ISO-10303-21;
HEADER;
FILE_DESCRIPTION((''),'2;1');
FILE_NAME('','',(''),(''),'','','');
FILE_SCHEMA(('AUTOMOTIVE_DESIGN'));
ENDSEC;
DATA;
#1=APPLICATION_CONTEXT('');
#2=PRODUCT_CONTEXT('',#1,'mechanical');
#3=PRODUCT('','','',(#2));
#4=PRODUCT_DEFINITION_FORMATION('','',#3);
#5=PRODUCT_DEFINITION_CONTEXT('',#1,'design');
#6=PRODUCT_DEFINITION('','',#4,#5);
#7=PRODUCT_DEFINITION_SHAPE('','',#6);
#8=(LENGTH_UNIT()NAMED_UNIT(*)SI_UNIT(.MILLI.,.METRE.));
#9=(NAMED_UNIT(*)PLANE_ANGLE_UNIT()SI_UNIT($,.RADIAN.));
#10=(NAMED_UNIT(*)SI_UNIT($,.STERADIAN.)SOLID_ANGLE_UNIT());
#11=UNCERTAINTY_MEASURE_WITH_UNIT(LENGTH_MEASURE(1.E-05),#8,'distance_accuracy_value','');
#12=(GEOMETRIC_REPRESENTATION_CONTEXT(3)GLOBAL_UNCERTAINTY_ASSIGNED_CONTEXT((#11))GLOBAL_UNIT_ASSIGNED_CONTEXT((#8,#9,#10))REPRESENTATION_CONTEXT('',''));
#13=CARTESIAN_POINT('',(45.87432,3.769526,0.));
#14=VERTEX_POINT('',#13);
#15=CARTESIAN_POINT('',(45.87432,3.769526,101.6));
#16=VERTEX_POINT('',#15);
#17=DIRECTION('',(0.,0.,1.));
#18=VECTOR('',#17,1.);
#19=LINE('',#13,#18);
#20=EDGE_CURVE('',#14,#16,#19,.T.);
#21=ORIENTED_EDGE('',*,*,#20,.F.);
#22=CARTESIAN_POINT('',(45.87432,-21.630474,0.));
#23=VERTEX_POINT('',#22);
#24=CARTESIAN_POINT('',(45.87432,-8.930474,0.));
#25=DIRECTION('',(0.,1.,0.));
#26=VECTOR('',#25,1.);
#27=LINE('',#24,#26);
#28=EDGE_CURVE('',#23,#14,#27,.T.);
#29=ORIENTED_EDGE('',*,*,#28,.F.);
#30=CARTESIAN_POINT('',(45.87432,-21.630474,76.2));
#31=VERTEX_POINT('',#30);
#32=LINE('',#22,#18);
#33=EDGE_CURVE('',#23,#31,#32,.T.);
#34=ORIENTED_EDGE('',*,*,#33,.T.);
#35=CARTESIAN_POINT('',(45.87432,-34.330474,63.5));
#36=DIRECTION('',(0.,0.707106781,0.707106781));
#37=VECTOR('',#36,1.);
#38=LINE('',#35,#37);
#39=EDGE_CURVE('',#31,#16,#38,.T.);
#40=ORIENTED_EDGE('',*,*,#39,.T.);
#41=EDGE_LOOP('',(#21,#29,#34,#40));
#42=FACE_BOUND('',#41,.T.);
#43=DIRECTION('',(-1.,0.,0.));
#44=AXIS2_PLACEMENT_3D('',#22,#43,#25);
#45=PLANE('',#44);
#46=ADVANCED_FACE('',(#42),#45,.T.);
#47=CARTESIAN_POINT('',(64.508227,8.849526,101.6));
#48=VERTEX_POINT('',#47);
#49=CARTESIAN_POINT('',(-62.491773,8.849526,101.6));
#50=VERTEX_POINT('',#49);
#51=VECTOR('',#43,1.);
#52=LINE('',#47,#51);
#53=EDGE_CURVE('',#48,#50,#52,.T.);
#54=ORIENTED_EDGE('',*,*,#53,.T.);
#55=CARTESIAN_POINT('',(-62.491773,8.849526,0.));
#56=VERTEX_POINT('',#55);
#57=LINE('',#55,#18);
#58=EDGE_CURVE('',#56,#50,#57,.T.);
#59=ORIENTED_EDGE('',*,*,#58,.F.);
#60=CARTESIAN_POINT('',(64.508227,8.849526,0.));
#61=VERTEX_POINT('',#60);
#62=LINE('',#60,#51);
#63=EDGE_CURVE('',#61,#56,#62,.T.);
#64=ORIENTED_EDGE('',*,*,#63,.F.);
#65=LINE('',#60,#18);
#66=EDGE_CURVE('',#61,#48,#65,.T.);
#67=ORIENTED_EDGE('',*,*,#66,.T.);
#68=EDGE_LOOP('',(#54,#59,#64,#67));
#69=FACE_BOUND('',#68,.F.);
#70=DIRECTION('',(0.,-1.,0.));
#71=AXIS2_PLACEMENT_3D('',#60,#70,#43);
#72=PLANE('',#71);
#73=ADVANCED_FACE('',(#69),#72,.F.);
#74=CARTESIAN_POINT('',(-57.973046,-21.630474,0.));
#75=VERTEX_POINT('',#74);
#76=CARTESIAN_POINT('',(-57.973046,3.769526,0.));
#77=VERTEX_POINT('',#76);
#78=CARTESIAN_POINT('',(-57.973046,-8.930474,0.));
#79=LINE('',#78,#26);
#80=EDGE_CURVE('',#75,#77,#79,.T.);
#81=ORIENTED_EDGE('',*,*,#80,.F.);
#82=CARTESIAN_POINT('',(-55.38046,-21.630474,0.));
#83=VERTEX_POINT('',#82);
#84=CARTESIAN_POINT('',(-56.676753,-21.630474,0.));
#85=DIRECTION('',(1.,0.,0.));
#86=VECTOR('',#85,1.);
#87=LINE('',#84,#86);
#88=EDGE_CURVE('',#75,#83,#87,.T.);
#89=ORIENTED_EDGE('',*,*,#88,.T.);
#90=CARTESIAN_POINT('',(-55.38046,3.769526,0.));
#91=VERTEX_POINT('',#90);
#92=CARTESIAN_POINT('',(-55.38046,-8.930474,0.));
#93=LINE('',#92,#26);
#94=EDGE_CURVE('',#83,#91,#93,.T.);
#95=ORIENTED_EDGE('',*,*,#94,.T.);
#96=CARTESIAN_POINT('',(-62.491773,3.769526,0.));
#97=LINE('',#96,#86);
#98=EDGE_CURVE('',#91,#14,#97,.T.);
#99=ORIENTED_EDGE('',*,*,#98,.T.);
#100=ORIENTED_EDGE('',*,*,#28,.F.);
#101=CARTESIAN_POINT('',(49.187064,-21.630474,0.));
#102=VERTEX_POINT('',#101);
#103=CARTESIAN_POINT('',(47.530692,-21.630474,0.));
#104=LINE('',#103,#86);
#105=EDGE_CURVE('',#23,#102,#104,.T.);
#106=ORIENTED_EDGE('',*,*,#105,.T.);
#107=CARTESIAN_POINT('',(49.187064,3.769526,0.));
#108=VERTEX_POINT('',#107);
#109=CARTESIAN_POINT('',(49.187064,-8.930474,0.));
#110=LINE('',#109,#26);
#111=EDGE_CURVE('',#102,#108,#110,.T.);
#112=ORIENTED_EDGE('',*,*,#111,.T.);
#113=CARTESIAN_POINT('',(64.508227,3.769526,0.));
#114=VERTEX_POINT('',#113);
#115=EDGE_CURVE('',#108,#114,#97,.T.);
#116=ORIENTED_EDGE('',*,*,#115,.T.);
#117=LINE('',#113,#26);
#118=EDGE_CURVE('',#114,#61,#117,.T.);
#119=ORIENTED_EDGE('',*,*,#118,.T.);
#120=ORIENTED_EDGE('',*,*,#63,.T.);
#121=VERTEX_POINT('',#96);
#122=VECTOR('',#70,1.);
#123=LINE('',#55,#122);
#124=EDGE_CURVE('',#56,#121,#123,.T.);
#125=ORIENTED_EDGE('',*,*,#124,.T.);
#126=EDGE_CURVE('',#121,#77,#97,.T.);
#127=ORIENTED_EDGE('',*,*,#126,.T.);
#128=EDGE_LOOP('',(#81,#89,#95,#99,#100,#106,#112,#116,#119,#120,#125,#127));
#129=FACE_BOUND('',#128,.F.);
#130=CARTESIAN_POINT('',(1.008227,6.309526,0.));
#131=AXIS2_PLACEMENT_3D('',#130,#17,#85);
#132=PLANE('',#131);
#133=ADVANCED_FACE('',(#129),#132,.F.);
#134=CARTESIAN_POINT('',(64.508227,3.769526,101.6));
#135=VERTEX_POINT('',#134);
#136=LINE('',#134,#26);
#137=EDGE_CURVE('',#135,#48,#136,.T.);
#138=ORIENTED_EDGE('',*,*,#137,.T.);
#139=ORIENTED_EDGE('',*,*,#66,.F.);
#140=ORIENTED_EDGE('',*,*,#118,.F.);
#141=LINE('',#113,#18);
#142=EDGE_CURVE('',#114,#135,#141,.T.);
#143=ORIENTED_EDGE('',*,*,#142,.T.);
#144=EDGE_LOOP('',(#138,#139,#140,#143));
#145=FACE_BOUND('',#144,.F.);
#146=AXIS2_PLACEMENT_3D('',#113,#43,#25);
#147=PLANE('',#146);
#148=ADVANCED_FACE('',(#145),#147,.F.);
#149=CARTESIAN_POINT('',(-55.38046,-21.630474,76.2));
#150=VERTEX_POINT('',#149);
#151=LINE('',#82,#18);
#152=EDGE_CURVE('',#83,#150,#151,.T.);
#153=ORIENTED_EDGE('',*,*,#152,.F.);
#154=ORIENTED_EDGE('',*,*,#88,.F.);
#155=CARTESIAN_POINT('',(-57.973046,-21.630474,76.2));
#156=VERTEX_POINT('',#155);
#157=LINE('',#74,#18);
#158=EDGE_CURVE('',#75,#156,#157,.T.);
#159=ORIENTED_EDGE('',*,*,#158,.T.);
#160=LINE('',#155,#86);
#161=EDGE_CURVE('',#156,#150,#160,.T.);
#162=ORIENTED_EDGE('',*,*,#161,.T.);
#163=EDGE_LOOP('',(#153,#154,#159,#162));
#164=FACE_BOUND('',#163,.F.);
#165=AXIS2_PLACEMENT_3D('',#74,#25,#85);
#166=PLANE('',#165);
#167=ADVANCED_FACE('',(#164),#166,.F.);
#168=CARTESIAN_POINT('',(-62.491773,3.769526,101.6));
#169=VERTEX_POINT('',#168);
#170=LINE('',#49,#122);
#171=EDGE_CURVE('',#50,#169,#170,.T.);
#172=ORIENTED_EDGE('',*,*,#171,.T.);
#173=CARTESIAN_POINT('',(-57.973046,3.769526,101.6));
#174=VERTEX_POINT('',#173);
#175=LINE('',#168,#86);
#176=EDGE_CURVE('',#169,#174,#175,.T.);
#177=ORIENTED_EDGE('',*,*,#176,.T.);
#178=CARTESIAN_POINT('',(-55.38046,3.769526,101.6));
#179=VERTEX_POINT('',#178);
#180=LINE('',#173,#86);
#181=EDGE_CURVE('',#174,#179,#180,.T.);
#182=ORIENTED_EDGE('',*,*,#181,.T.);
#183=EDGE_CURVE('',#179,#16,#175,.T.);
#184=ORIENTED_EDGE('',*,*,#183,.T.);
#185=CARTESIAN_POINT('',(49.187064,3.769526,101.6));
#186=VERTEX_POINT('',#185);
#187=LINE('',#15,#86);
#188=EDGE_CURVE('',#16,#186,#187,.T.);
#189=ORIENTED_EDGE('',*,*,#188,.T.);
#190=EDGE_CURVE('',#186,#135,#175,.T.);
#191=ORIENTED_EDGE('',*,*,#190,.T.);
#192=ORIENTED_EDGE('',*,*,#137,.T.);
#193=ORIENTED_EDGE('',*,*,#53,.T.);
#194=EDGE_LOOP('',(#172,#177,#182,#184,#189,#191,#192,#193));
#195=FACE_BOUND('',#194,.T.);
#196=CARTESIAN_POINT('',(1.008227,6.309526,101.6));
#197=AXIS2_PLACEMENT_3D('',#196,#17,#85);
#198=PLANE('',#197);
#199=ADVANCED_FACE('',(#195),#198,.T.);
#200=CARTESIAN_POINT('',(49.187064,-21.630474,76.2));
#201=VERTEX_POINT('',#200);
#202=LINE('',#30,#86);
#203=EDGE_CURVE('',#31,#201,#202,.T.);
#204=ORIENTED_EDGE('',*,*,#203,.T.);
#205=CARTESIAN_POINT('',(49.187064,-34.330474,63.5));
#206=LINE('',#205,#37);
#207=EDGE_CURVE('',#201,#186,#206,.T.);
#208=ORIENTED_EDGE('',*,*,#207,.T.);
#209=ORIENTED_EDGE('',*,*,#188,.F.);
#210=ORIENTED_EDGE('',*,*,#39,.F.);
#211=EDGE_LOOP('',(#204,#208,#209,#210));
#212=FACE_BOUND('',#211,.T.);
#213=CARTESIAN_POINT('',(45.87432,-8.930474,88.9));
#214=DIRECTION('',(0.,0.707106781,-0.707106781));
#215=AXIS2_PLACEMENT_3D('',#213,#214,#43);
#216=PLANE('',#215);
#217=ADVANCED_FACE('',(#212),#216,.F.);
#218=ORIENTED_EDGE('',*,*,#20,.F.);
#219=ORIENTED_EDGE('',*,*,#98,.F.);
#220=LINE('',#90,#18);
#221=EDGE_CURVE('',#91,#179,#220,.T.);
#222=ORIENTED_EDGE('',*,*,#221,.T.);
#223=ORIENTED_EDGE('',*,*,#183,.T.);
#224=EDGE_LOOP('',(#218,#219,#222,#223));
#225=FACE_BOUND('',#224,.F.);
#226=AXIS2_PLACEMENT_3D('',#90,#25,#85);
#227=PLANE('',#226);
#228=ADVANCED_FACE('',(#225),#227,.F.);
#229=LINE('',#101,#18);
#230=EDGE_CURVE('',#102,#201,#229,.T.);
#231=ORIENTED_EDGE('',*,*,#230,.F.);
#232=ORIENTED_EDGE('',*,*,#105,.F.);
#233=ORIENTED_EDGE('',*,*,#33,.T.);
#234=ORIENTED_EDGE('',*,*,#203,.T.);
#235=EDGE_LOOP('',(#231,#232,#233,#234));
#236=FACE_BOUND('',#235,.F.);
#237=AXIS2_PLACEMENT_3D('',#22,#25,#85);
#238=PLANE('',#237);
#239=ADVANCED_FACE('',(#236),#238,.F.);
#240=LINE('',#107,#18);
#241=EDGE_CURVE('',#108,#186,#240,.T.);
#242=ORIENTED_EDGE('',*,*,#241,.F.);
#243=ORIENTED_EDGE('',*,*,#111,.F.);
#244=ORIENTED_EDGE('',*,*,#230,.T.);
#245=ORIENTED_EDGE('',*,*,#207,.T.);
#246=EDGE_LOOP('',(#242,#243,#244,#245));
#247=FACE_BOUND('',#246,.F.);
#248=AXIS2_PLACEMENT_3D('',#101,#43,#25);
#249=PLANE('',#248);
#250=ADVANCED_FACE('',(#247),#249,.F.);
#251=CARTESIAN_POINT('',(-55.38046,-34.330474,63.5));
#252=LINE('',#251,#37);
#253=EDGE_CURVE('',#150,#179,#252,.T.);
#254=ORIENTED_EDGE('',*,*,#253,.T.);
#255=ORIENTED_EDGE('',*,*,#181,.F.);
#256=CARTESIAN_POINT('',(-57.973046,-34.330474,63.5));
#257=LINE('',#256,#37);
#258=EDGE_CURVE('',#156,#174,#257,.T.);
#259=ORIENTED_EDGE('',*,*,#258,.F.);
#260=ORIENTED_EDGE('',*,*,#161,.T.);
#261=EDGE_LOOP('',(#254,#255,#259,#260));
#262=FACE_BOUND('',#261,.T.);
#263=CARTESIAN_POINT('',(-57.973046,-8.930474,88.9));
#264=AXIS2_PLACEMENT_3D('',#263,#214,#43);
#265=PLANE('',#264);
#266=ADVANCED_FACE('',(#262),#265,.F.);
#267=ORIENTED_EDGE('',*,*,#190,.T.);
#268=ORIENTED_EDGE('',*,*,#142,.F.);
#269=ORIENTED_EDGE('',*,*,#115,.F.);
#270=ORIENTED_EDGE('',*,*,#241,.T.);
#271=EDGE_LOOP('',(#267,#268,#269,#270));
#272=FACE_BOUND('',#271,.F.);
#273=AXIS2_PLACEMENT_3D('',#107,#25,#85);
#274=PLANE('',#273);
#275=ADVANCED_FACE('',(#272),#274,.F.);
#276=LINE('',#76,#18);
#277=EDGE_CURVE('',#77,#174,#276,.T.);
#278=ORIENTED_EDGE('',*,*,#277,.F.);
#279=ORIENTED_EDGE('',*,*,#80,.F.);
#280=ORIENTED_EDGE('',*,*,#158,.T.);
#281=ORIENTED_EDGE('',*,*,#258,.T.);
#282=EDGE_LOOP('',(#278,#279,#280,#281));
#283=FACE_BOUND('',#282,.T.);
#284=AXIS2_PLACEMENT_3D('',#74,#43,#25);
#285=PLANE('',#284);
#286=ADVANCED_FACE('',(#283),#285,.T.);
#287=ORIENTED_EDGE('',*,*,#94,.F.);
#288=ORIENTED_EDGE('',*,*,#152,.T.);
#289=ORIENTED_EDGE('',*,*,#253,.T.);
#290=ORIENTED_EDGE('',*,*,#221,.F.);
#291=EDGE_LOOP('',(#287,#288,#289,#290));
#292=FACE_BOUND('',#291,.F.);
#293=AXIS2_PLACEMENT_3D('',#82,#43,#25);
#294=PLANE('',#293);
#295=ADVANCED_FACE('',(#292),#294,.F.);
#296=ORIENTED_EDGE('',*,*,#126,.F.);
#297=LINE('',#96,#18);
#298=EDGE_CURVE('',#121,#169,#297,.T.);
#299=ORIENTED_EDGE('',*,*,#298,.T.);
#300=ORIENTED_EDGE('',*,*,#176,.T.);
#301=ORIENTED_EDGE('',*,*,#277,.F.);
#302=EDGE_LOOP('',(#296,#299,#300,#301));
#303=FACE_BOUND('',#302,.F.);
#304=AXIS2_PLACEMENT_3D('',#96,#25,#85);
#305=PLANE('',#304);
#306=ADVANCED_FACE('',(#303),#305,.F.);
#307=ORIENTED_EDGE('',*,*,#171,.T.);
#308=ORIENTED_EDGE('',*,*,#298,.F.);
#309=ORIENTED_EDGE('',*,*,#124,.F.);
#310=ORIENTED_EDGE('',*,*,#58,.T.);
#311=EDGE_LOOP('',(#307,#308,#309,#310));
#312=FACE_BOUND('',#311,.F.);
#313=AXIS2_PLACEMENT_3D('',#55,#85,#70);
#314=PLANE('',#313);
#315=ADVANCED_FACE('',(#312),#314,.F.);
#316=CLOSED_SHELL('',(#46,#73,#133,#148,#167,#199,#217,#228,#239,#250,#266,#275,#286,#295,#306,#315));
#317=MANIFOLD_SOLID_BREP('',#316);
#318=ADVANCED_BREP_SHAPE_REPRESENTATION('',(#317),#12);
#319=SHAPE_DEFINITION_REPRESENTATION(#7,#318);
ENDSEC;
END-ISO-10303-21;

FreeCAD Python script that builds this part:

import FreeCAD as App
import Part
import Sketcher
Q = App.Units.Quantity


def edges_at(feature, points):
    """Names of the edges that pass closest to the given points."""
    edges = feature.Shape.Edges
    near = lambda p: min(range(len(edges)), key=lambda i: edges[i].distToShape(Part.Vertex(*p))[0])
    return sorted({f"Edge{near(p) + 1}" for p in points})

doc = App.newDocument("Part")
body = doc.addObject("PartDesign::Body", "Body")

# Sketch on XY plane
sketch1 = doc.addObject("Sketcher::SketchObject", "Sketch")
body.addObject(sketch1)
sketch1.AttachmentSupport = (doc.XY_Plane, [""])
sketch1.MapMode = "FlatFace"
sketch1.addGeometry([
    Part.LineSegment(App.Vector(64.5, 3.8, 0), App.Vector(64.5, 8.8, 0)),  # 0
    Part.LineSegment(App.Vector(64.5, 8.8, 0), App.Vector(-62.5, 8.8, 0)),  # 1
    Part.LineSegment(App.Vector(-62.5, 8.8, 0), App.Vector(-62.5, 3.8, 0)),  # 2
    Part.LineSegment(App.Vector(-62.5, 3.8, 0), App.Vector(-58, 3.8, 0)),  # 3
    Part.LineSegment(App.Vector(-58, 3.8, 0), App.Vector(-58, -21.6, 0)),  # 4
    Part.LineSegment(App.Vector(-58, -21.6, 0), App.Vector(-55.4, -21.6, 0)),  # 5
    Part.LineSegment(App.Vector(-55.4, -21.6, 0), App.Vector(-55.4, 3.8, 0)),  # 6
    Part.LineSegment(App.Vector(-55.4, 3.8, 0), App.Vector(45.9, 3.8, 0)),  # 7
    Part.LineSegment(App.Vector(45.9, 3.8, 0), App.Vector(45.9, -21.6, 0)),  # 8
    Part.LineSegment(App.Vector(45.9, -21.6, 0), App.Vector(49.2, -21.6, 0)),  # 9
    Part.LineSegment(App.Vector(49.2, -21.6, 0), App.Vector(49.2, 3.8, 0)),  # 10
    Part.LineSegment(App.Vector(49.2, 3.8, 0), App.Vector(64.5, 3.8, 0)),  # 11
], False)
sketch1.addConstraint([
    Sketcher.Constraint("Coincident", 0, 2, 1, 1),
    Sketcher.Constraint("Coincident", 1, 2, 2, 1),
    Sketcher.Constraint("Coincident", 2, 2, 3, 1),
    Sketcher.Constraint("Coincident", 3, 2, 4, 1),
    Sketcher.Constraint("Coincident", 4, 2, 5, 1),
    Sketcher.Constraint("Coincident", 5, 2, 6, 1),
    Sketcher.Constraint("Coincident", 6, 2, 7, 1),
    Sketcher.Constraint("Coincident", 7, 2, 8, 1),
    Sketcher.Constraint("Coincident", 8, 2, 9, 1),
    Sketcher.Constraint("Coincident", 9, 2, 10, 1),
    Sketcher.Constraint("Coincident", 10, 2, 11, 1),
    Sketcher.Constraint("Coincident", 11, 2, 0, 1),
    Sketcher.Constraint("Vertical", 0),
    Sketcher.Constraint("Horizontal", 1),
    Sketcher.Constraint("Vertical", 2),
    Sketcher.Constraint("Horizontal", 3),
    Sketcher.Constraint("Vertical", 4),
    Sketcher.Constraint("Horizontal", 5),
    Sketcher.Constraint("Vertical", 6),
    Sketcher.Constraint("Horizontal", 7),
    Sketcher.Constraint("Vertical", 8),
    Sketcher.Constraint("Horizontal", 9),
    Sketcher.Constraint("Vertical", 10),
    Sketcher.Constraint("Horizontal", 11),
    Sketcher.Constraint("Horizontal", 3, 2, 6, 2),
    Sketcher.Constraint("Horizontal", 5, 2, 8, 2),
    Sketcher.Constraint("Horizontal", 7, 2, 10, 2),
    Sketcher.Constraint("DistanceX", 1, 2, 1, 1, Q("5 in")),
    Sketcher.Constraint("DistanceY", 4, 2, 4, 1, Q("1 in")),
    Sketcher.Constraint("DistanceY", 0, 1, 0, 2, Q("0.2 in")),
    Sketcher.Constraint("DistanceX", 7, 1, 7, 2, Q("101.25478 mm")),
    Sketcher.Constraint("DistanceX", 3, 1, 3, 2, Q("4.518727 mm")),
    Sketcher.Constraint("DistanceX", 5, 1, 5, 2, Q("2.592586 mm")),
    Sketcher.Constraint("DistanceX", 9, 1, 9, 2, Q("3.312744 mm")),
    Sketcher.Constraint("DistanceX", 5, 2, -1, 1, Q("55.38046 mm")),
    Sketcher.Constraint("DistanceY", -1, 1, 0, 2, Q("8.849526 mm")),
])
pad1 = doc.addObject("PartDesign::Pad", "Pad")
body.addObject(pad1)
pad1.Profile = sketch1
pad1.Length = Q("4 in")
doc.recompute()

chamfer = doc.addObject("PartDesign::Chamfer", "Chamfer")
body.addObject(chamfer)
chamfer.Base = (pad1, edges_at(pad1, [(-56.677, -21.63, 101.6), (47.531, -21.63, 101.6)]))
chamfer.Size = Q("1 in")

doc.recompute()
